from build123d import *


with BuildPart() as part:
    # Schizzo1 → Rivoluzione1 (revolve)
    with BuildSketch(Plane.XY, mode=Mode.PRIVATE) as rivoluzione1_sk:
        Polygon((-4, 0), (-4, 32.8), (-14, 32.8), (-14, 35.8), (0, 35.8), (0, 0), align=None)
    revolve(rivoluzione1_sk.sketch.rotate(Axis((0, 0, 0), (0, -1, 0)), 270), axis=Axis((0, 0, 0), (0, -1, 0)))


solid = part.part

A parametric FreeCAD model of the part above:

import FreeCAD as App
import Part
import Sketcher
from FreeCAD import Vector
Q = App.Units.Quantity


def add_polygon(sketch, points):
    """Adds a closed chain of lines whose ends are joined by coincident constraints."""
    first, n = sketch.GeometryCount, len(points)
    for a, b in zip(points, points[1:] + points[:1]):
        sketch.addGeometry(Part.LineSegment(App.Vector(*a, 0), App.Vector(*b, 0)), False)
    for i in range(n):
        sketch.addConstraint(Sketcher.Constraint("Coincident", first + i, 2, first + (i + 1) % n, 1))

doc = App.newDocument("Part")
body = doc.addObject("PartDesign::Body", "Body")

sketch1 = body.newObject("Sketcher::SketchObject", "Sketch")
sketch1.AttachmentSupport = (doc.getObject("XY_Plane"), [""])
sketch1.MapMode = "FlatFace"
add_polygon(sketch1, [(-4, 32.8), (-4, 0), (0, 0), (0, 35.8), (-14, 35.8), (-14, 32.8)])
sketch1.addConstraint(Sketcher.Constraint("Vertical", 0))
sketch1.addConstraint(Sketcher.Constraint("Horizontal", 1))
sketch1.addConstraint(Sketcher.Constraint("Vertical", 2))
sketch1.addConstraint(Sketcher.Constraint("Horizontal", 3))
sketch1.addConstraint(Sketcher.Constraint("Vertical", 4))
sketch1.addConstraint(Sketcher.Constraint("Horizontal", 5))
sketch1.addConstraint(Sketcher.Constraint("Coincident", 1, 2, -1, 1))
sketch1.addConstraint(Sketcher.Constraint("DistanceX", 1, 1, 1, 2, Q("4 mm")))
sketch1.addConstraint(Sketcher.Constraint("DistanceX", 3, 2, 3, 1, Q("14 mm")))
sketch1.addConstraint(Sketcher.Constraint("DistanceY", 4, 2, 4, 1, Q("3 mm")))
sketch1.addConstraint(Sketcher.Constraint("DistanceY", 0, 2, 0, 1, Q("32.8 mm")))
revolution = body.newObject("PartDesign::Revolution", "Revolution")
revolution.Profile = sketch1
revolution.ReferenceAxis = (sketch1, ["V_Axis"])
revolution.Angle = 360

doc.recompute()
